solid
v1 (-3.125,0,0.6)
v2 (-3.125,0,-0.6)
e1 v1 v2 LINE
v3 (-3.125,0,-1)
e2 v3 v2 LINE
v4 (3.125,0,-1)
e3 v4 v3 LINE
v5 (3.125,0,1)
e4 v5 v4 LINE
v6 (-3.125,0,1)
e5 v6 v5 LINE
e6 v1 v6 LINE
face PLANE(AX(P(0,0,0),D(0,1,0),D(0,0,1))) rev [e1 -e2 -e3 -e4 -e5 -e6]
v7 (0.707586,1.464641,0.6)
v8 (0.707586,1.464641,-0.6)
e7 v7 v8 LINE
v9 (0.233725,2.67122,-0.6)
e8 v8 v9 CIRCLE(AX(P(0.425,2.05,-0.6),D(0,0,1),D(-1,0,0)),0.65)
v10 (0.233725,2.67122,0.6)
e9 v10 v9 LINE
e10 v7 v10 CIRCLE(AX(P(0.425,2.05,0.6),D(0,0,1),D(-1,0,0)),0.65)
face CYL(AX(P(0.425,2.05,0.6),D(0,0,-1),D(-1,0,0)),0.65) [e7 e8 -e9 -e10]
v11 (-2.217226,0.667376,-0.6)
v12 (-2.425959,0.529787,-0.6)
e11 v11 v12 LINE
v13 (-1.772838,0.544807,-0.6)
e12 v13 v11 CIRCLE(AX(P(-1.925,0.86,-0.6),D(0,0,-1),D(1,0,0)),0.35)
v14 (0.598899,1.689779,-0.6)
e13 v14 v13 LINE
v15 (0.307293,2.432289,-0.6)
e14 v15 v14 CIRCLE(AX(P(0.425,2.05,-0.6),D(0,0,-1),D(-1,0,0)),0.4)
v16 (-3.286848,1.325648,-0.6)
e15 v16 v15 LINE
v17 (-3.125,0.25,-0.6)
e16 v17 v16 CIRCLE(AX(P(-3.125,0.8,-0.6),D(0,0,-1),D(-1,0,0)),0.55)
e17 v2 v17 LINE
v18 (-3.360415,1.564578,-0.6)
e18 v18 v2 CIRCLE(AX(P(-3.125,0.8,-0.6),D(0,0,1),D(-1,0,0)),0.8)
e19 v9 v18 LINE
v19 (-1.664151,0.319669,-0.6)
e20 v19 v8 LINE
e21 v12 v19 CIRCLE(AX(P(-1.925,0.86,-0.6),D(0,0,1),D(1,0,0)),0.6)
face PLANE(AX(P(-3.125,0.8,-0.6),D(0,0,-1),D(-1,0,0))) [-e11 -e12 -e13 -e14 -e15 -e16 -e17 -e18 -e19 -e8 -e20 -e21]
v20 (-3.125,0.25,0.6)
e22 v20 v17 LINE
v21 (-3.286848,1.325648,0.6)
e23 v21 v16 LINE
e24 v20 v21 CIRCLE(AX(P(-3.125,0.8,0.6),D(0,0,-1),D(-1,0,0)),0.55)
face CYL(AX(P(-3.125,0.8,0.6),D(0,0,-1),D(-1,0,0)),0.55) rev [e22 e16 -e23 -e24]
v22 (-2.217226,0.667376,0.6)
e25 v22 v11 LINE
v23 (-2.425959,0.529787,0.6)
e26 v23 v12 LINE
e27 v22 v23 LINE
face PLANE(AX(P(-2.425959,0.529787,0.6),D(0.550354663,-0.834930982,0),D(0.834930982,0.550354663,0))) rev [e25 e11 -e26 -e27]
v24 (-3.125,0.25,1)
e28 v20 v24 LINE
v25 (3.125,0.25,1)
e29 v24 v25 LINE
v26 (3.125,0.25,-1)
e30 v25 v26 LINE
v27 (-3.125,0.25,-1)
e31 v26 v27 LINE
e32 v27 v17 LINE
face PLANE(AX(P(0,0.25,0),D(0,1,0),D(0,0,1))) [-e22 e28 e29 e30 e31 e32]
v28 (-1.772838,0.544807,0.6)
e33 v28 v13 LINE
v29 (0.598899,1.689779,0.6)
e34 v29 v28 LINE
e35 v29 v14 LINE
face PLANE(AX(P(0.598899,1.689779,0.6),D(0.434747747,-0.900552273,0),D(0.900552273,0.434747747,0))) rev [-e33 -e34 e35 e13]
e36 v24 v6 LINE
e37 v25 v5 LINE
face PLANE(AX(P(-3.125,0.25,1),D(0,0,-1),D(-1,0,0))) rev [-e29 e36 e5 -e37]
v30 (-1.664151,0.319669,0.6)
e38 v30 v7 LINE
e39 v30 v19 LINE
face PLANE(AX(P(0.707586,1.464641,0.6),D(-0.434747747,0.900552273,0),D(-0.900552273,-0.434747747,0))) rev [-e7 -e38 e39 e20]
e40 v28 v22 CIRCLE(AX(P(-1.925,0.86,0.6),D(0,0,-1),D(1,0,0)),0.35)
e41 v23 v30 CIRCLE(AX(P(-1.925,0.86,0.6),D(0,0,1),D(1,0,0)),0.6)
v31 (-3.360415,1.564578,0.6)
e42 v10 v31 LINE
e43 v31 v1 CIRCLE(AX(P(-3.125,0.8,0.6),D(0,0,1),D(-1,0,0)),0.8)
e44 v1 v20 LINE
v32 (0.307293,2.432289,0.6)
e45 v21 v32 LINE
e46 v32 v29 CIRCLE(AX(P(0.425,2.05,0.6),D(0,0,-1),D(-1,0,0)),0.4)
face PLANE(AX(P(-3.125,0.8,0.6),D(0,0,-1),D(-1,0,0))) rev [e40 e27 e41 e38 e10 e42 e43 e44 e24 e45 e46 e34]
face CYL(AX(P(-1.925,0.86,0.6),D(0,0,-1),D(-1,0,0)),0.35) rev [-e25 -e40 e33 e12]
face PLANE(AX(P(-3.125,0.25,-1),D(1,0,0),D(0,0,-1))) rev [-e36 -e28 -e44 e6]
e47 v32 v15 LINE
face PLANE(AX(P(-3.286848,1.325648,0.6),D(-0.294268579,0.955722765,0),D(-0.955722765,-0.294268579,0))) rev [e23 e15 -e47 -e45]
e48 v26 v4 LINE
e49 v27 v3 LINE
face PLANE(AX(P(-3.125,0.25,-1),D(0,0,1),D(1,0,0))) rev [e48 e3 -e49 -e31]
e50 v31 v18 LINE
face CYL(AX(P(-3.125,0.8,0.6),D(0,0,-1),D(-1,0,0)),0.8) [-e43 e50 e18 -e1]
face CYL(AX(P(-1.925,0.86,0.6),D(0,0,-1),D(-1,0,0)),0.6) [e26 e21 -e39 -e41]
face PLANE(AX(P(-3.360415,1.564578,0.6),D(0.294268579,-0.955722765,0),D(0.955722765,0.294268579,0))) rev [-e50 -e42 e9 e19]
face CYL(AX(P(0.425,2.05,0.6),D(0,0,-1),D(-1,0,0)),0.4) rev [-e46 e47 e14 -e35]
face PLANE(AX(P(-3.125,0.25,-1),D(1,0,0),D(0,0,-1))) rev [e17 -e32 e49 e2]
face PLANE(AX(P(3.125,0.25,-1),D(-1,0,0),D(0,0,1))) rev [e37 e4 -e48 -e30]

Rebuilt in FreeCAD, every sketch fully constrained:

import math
import FreeCAD as App
import Part
import Sketcher

V = App.Vector


def add_polygon(sketch, points):
    """Adds a closed chain of lines whose ends are joined by coincident constraints."""
    first, n = sketch.GeometryCount, len(points)
    for a, b in zip(points, points[1:] + points[:1]):
        sketch.addGeometry(Part.LineSegment(App.Vector(*a, 0), App.Vector(*b, 0)), False)
    for i in range(n):
        sketch.addConstraint(Sketcher.Constraint("Coincident", first + i, 2, first + (i + 1) % n, 1))

doc = App.newDocument("Part")
body = doc.addObject("PartDesign::Body", "Body")

# Sketch on XZ plane
sketch1 = body.newObject("Sketcher::SketchObject", "Sketch")
sketch1.AttachmentSupport = (doc.getObject("XZ_Plane"), [""])
sketch1.MapMode = "FlatFace"
add_polygon(sketch1, [(-3.1, -1), (-3.1, 1), (3.1, 1), (3.1, -1)])  # lines 0-3
sketch1.addConstraint(Sketcher.Constraint("Vertical", 0))
sketch1.addConstraint(Sketcher.Constraint("Horizontal", 1))
sketch1.addConstraint(Sketcher.Constraint("Vertical", 2))
sketch1.addConstraint(Sketcher.Constraint("Horizontal", 3))
sketch1.addConstraint(Sketcher.Constraint("Symmetric", 0, 2, 2, 2, -1, 1))
sketch1.addConstraint(Sketcher.Constraint("DistanceY", 0, 1, 0, 2, 2.0))
sketch1.addConstraint(Sketcher.Constraint("DistanceX", 1, 1, 1, 2, 6.25))
pad1 = body.newObject("PartDesign::Pad", "Pad")
pad1.Profile = sketch1
pad1.Length = 0.25
pad1.Reversed = True

# Sketch on XY plane
sketch2 = body.newObject("Sketcher::SketchObject", "Sketch001")
sketch2.AttachmentSupport = (doc.getObject("XY_Plane"), [""])
sketch2.MapMode = "FlatFace"
sketch2.addGeometry(Part.LineSegment(V(0.23, 2.67, 0), V(-3.36, 1.56, 0)), False)
sketch2.addGeometry(Part.ArcOfCircle(Part.Circle(V(-3.12, 0.8, 0), V(0, 0, 1), 0.8), math.radians(107), math.radians(270)), False)
sketch2.addGeometry(Part.LineSegment(V(-3.12, 0, 0), V(-3.12, 0.25, 0)), False)
sketch2.addGeometry(Part.ArcOfCircle(Part.Circle(V(-3.12, 0.8, 0), V(0, 0, 1), 0.55), math.radians(107), math.radians(270)), False)
sketch2.addGeometry(Part.LineSegment(V(-3.29, 1.33, 0), V(0.31, 2.43, 0)), False)
sketch2.addGeometry(Part.ArcOfCircle(Part.Circle(V(0.42, 2.05, 0), V(0, 0, 1), 0.4), math.radians(-64), math.radians(107)), False)
sketch2.addGeometry(Part.LineSegment(V(0.6, 1.69, 0), V(-1.77, 0.54, 0)), False)
sketch2.addGeometry(Part.ArcOfCircle(Part.Circle(V(-1.92, 0.86, 0), V(0, 0, 1), 0.35), math.radians(-147), math.radians(-64)), False)
sketch2.addGeometry(Part.LineSegment(V(-2.22, 0.67, 0), V(-2.43, 0.53, 0)), False)
sketch2.addGeometry(Part.ArcOfCircle(Part.Circle(V(-1.93, 0.86, 0), V(0, 0, 1), 0.6), math.radians(-147), math.radians(-64)), False)
sketch2.addGeometry(Part.LineSegment(V(-1.66, 0.32, 0), V(0.71, 1.46, 0)), False)
sketch2.addGeometry(Part.ArcOfCircle(Part.Circle(V(0.42, 2.05, 0), V(0, 0, 1), 0.65), math.radians(-64), math.radians(107)), False)
sketch2.addConstraint(Sketcher.Constraint("Tangent", 0, 2, 1, 1))
sketch2.addConstraint(Sketcher.Constraint("Coincident", 1, 2, 2, 1))
sketch2.addConstraint(Sketcher.Constraint("Coincident", 2, 2, 3, 2))
sketch2.addConstraint(Sketcher.Constraint("Tangent", 3, 1, 4, 1))
sketch2.addConstraint(Sketcher.Constraint("Tangent", 4, 2, 5, 2))
sketch2.addConstraint(Sketcher.Constraint("Tangent", 5, 1, 6, 1))
sketch2.addConstraint(Sketcher.Constraint("Tangent", 6, 2, 7, 2))
sketch2.addConstraint(Sketcher.Constraint("Coincident", 7, 1, 8, 1))
sketch2.addConstraint(Sketcher.Constraint("Coincident", 8, 2, 9, 1))
sketch2.addConstraint(Sketcher.Constraint("Tangent", 9, 2, 10, 1))
sketch2.addConstraint(Sketcher.Constraint("Tangent", 10, 2, 11, 1))
sketch2.addConstraint(Sketcher.Constraint("Tangent", 11, 2, 0, 1))
sketch2.addConstraint(Sketcher.Constraint("Vertical", 2))
sketch2.addConstraint(Sketcher.Constraint("Coincident", 3, 3, 1, 3))
sketch2.addConstraint(Sketcher.Constraint("Coincident", 9, 3, 7, 3))
sketch2.addConstraint(Sketcher.Constraint("Coincident", 11, 3, 5, 3))
sketch2.addConstraint(Sketcher.Constraint("PointOnObject", 1, 2, -1))
sketch2.addConstraint(Sketcher.Constraint("Parallel", 0, 4))
sketch2.addConstraint(Sketcher.Constraint("Parallel", 6, 10))
sketch2.addConstraint(Sketcher.Constraint("Vertical", 3, 3, 1, 2))
sketch2.addConstraint(Sketcher.Constraint("Radius", 1, 0.8))
sketch2.addConstraint(Sketcher.Constraint("Radius", 5, 0.4))
sketch2.addConstraint(Sketcher.Constraint("Radius", 9, 0.6))
sketch2.addConstraint(Sketcher.Constraint("Radius", 3, 0.55))
sketch2.addConstraint(Sketcher.Constraint("DistanceX", 3, 3, 7, 3, 1.2))
sketch2.addConstraint(Sketcher.Constraint("DistanceY", -1, 1, 5, 3, 2.05))
sketch2.addConstraint(Sketcher.Constraint("DistanceY", -1, 1, 7, 3, 0.86))
sketch2.addConstraint(Sketcher.Constraint("DistanceX", 3, 3, 5, 3, 3.55))
sketch2.addConstraint(Sketcher.Constraint("DistanceX", 1, 3, -1, 1, 3.125))
sketch2.addConstraint(Sketcher.Constraint("DistanceX", 8, 2, -1, 1, 2.425959))
sketch2.addConstraint(Sketcher.Constraint("DistanceY", 6, 2, 7, 1, 0.122569))
pad2 = body.newObject("PartDesign::Pad", "Pad001")
pad2.Profile = sketch2
pad2.Length = 1.2
pad2.Midplane = True

doc.recompute()
